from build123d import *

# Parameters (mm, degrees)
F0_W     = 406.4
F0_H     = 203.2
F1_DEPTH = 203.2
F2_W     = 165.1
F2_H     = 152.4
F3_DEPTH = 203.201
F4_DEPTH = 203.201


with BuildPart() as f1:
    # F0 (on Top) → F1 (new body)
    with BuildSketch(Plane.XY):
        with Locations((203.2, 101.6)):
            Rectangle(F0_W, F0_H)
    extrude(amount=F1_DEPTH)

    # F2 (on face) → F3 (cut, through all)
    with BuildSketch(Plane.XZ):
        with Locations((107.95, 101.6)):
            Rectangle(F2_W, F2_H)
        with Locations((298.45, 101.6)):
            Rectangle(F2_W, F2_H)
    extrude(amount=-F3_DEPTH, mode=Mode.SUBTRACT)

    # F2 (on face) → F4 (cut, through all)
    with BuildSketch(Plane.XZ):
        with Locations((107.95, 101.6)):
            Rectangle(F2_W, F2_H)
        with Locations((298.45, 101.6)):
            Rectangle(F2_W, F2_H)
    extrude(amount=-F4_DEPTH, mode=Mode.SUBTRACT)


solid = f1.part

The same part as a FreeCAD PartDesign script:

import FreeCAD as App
import Part
import Sketcher
from FreeCAD import Vector
Q = App.Units.Quantity


def add_polygon(sketch, points):
    """Adds a closed chain of lines whose ends are joined by coincident constraints."""
    first, n = sketch.GeometryCount, len(points)
    for a, b in zip(points, points[1:] + points[:1]):
        sketch.addGeometry(Part.LineSegment(App.Vector(*a, 0), App.Vector(*b, 0)), False)
    for i in range(n):
        sketch.addConstraint(Sketcher.Constraint("Coincident", first + i, 2, first + (i + 1) % n, 1))

doc = App.newDocument("Part")
body = doc.addObject("PartDesign::Body", "Body")

sketch1 = body.newObject("Sketcher::SketchObject", "Sketch")
sketch1.AttachmentSupport = (doc.getObject("XY_Plane"), [""])
sketch1.MapMode = "FlatFace"
add_polygon(sketch1, [(0, 203), (0, 0), (406, 0), (406, 203)])
sketch1.addConstraint([
    Sketcher.Constraint("Vertical", 0),
    Sketcher.Constraint("Horizontal", 1),
    Sketcher.Constraint("Vertical", 2),
    Sketcher.Constraint("Horizontal", 3),
    Sketcher.Constraint("Coincident", 0, 2, -1, 1),
    Sketcher.Constraint("DistanceX", 1, 1, 1, 2, Q("16 in")),
    Sketcher.Constraint("DistanceY", 0, 2, 0, 1, Q("8 in")),
])
pad1 = body.newObject("PartDesign::Pad", "Pad")
pad1.Profile = sketch1
pad1.Length = Q("8 in")

sketch2 = body.newObject("Sketcher::SketchObject", "Sketch001")
sketch2.AttachmentSupport = (doc.getObject("XZ_Plane"), [""])
sketch2.MapMode = "FlatFace"
add_polygon(sketch2, [(25, 178), (25, 25), (190, 25), (190, 178)])
add_polygon(sketch2, [(216, 178), (216, 25), (381, 25), (381, 178)])
sketch2.addConstraint([
    Sketcher.Constraint("Vertical", 0),
    Sketcher.Constraint("Horizontal", 1),
    Sketcher.Constraint("Vertical", 2),
    Sketcher.Constraint("Horizontal", 3),
    Sketcher.Constraint("Vertical", 4),
    Sketcher.Constraint("Horizontal", 5),
    Sketcher.Constraint("Vertical", 6),
    Sketcher.Constraint("Horizontal", 7),
    Sketcher.Constraint("Horizontal", 1, 2, 4, 2),
    Sketcher.Constraint("Horizontal", 3, 2, 6, 2),
    Sketcher.Constraint("Equal", 3, 5),
    Sketcher.Constraint("DistanceY", 0, 2, 0, 1, Q("6 in")),
    Sketcher.Constraint("DistanceX", 1, 1, 1, 2, Q("6.5 in")),
    Sketcher.Constraint("DistanceX", -1, 1, 0, 2, Q("1 in")),
    Sketcher.Constraint("DistanceY", -1, 1, 0, 2, Q("1 in")),
    Sketcher.Constraint("DistanceX", -1, 1, 5, 2, Q("15 in")),
])
pocket1 = body.newObject("PartDesign::Pocket", "Pocket")
pocket1.Profile = sketch2
pocket1.Type = "ThroughAll"

sketch3 = body.newObject("Sketcher::SketchObject", "Sketch002")
sketch3.AttachmentSupport = (doc.getObject("XZ_Plane"), [""])
sketch3.MapMode = "FlatFace"
add_polygon(sketch3, [(25, 178), (25, 25), (190, 25), (190, 178)])
add_polygon(sketch3, [(216, 178), (216, 25), (381, 25), (381, 178)])
sketch3.addConstraint([
    Sketcher.Constraint("Vertical", 0),
    Sketcher.Constraint("Horizontal", 1),
    Sketcher.Constraint("Vertical", 2),
    Sketcher.Constraint("Horizontal", 3),
    Sketcher.Constraint("Vertical", 4),
    Sketcher.Constraint("Horizontal", 5),
    Sketcher.Constraint("Vertical", 6),
    Sketcher.Constraint("Horizontal", 7),
    Sketcher.Constraint("Horizontal", 1, 2, 4, 2),
    Sketcher.Constraint("Horizontal", 3, 2, 6, 2),
    Sketcher.Constraint("Equal", 3, 5),
    Sketcher.Constraint("DistanceY", 0, 2, 0, 1, Q("6 in")),
    Sketcher.Constraint("DistanceX", 1, 1, 1, 2, Q("6.5 in")),
    Sketcher.Constraint("DistanceX", -1, 1, 0, 2, Q("1 in")),
    Sketcher.Constraint("DistanceY", -1, 1, 0, 2, Q("1 in")),
    Sketcher.Constraint("DistanceX", -1, 1, 5, 2, Q("15 in")),
])
pocket2 = body.newObject("PartDesign::Pocket", "Pocket001")
pocket2.Profile = sketch3
pocket2.Type = "ThroughAll"

doc.recompute()
